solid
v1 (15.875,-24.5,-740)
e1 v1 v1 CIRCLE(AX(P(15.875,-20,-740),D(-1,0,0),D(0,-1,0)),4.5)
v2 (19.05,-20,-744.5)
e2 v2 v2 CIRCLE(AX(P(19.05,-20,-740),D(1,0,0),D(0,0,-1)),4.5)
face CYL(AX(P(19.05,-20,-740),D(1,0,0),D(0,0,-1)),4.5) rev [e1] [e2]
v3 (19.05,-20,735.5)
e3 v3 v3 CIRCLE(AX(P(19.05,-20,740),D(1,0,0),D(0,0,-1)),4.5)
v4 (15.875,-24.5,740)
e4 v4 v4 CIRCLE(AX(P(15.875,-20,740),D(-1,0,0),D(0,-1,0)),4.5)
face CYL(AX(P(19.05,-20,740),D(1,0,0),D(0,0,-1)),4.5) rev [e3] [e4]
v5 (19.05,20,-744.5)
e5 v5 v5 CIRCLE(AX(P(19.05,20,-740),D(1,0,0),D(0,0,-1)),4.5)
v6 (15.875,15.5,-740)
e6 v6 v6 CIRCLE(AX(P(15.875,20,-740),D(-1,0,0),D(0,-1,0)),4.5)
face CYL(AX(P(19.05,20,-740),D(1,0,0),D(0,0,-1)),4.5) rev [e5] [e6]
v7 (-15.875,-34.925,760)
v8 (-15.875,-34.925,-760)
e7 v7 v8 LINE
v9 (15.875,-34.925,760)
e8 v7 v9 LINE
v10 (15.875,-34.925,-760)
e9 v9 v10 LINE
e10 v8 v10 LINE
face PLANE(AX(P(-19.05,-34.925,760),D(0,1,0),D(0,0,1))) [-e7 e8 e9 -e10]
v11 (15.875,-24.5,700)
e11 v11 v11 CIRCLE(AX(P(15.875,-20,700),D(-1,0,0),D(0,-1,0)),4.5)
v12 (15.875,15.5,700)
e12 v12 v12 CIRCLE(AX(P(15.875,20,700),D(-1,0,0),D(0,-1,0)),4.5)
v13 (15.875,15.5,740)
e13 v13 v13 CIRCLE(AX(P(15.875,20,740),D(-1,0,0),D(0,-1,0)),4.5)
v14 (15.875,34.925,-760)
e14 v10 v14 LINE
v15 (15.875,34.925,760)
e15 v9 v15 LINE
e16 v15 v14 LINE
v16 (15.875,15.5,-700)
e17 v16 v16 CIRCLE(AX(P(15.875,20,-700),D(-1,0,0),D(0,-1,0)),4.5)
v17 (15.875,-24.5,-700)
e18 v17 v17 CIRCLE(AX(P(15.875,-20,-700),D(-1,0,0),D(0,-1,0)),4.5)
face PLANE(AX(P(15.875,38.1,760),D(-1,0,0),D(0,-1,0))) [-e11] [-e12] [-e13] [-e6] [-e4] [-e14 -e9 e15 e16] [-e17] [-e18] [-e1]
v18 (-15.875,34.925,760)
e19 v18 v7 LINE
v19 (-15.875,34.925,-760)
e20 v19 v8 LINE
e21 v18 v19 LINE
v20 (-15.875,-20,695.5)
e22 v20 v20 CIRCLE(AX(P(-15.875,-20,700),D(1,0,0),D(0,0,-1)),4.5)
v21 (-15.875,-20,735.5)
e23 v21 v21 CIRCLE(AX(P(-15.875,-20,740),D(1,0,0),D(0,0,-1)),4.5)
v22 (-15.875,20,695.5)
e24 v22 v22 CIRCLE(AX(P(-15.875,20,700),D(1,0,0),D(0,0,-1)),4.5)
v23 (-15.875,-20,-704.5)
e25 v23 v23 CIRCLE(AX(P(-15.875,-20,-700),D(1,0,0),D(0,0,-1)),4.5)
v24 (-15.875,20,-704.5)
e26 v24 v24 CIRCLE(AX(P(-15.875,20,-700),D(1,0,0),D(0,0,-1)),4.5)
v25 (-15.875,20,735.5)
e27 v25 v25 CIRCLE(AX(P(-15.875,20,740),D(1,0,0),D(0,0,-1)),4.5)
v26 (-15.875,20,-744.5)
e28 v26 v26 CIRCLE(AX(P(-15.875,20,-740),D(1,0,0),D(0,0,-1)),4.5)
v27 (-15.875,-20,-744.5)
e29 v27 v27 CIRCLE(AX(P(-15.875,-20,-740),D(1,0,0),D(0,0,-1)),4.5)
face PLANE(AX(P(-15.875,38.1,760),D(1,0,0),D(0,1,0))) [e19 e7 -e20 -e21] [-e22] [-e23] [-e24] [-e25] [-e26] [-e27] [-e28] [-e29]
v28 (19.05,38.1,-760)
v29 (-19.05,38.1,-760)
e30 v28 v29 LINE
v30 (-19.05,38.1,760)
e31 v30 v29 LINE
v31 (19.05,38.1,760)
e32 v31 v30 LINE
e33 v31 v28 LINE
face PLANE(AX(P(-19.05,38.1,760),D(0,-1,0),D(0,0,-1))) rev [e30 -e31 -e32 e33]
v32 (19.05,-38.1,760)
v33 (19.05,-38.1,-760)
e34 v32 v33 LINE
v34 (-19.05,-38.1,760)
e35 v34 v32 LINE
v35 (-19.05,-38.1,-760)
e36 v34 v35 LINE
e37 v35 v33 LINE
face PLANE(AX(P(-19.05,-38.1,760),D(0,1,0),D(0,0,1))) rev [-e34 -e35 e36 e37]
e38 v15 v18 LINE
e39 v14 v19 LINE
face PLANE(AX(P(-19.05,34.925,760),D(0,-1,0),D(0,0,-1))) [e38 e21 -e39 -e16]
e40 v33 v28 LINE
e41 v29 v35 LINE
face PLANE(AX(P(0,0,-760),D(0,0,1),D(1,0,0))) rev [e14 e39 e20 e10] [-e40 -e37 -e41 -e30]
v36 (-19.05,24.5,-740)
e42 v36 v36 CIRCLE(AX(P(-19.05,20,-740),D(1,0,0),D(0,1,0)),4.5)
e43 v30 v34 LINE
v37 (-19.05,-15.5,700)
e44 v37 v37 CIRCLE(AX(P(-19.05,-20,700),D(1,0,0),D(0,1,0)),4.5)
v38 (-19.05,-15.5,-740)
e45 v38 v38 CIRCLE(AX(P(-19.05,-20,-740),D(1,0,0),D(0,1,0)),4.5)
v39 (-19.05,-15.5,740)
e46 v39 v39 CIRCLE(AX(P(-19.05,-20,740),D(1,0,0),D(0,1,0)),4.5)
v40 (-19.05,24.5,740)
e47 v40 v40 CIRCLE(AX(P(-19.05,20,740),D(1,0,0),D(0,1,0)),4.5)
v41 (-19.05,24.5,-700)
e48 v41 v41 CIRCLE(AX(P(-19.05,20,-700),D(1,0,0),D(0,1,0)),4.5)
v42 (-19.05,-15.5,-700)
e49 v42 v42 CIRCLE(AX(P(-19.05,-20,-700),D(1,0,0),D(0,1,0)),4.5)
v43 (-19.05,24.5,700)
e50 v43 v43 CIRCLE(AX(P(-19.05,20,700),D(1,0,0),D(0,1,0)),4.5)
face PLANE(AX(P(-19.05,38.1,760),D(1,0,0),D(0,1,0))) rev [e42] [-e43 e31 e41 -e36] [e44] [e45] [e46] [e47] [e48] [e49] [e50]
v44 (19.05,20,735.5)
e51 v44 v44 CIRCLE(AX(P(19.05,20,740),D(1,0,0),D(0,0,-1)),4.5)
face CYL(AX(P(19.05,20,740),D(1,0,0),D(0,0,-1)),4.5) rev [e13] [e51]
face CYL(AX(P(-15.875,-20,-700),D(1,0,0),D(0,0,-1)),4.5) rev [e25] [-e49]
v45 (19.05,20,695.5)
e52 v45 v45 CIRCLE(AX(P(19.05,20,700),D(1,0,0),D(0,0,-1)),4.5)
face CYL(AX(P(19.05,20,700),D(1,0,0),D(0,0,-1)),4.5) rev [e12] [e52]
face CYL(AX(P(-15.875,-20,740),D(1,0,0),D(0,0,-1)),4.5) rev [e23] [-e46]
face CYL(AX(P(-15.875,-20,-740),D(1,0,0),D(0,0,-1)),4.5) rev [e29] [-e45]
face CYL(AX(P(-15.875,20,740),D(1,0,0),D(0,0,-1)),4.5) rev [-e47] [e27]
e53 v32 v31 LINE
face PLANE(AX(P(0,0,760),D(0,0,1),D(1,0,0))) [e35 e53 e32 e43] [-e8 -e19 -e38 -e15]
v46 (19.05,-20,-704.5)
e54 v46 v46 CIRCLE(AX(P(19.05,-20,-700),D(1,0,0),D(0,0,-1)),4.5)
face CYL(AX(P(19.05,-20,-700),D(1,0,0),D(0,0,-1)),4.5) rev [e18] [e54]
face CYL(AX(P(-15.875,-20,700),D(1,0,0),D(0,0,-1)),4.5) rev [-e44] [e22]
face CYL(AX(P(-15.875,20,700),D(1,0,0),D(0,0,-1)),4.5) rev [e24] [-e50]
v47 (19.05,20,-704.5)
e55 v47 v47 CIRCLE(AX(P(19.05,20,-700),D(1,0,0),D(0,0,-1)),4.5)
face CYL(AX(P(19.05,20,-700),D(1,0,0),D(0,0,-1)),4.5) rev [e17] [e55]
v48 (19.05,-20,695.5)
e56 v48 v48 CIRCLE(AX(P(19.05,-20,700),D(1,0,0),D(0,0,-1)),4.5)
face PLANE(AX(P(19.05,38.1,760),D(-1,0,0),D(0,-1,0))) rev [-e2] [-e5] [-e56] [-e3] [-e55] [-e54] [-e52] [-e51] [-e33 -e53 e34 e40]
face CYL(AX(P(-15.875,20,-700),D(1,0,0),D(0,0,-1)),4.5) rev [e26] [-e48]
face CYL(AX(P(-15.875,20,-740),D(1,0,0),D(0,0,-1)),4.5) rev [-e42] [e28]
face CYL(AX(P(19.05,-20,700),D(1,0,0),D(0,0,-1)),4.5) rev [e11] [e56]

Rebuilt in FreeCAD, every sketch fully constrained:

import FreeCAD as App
import Part
import Sketcher
from FreeCAD import Vector
Q = App.Units.Quantity


def add_polygon(sketch, points):
    """Adds a closed chain of lines whose ends are joined by coincident constraints."""
    first, n = sketch.GeometryCount, len(points)
    for a, b in zip(points, points[1:] + points[:1]):
        sketch.addGeometry(Part.LineSegment(App.Vector(*a, 0), App.Vector(*b, 0)), False)
    for i in range(n):
        sketch.addConstraint(Sketcher.Constraint("Coincident", first + i, 2, first + (i + 1) % n, 1))

doc = App.newDocument("Part")
params = doc.addObject("Spreadsheet::Sheet", "Params")
for row, (alias, value) in enumerate([
    ("sketch1_height", "3 in"),
    ("sketch1_width", "1.5 in"),
    ("sketch1_width2", "1.25 in"),
    ("sketch1_height2", "2.75 in"),
    ("pad1_length", "1520 mm"),
    ("hole_diameter", "9 mm"),
    ("hole_depth", "0.125 in"),
    ("hole2_diameter", "9 mm"),
], start=1):
    params.set(f"A{row}", alias)
    params.set(f"B{row}", "=" + value)
    params.setAlias(f"B{row}", alias)

body = doc.addObject("PartDesign::Body", "Body")

# Sketch on XY plane
sketch1 = doc.addObject("Sketcher::SketchObject", "Sketch")
body.addObject(sketch1)
sketch1.AttachmentSupport = (doc.XY_Plane, [""])
sketch1.MapMode = "FlatFace"
add_polygon(sketch1, [(-19, 38), (-19, -38), (19, -38), (19, 38)])  # lines 0-3
add_polygon(sketch1, [(16, -35), (-16, -35), (-16, 35), (16, 35)])  # lines 4-7
sketch1.addConstraint([
    Sketcher.Constraint("Vertical", 0),
    Sketcher.Constraint("Horizontal", 1),
    Sketcher.Constraint("Vertical", 2),
    Sketcher.Constraint("Horizontal", 3),
    Sketcher.Constraint("Horizontal", 4),
    Sketcher.Constraint("Vertical", 5),
    Sketcher.Constraint("Horizontal", 6),
    Sketcher.Constraint("Vertical", 7),
    Sketcher.Constraint("Symmetric", 0, 2, 2, 2, -1, 1),
    Sketcher.Constraint("Symmetric", 4, 2, 6, 2, -1, 1),
    Sketcher.Constraint("DistanceY", 0, 2, 0, 1, Q("3 in")),
    Sketcher.Constraint("DistanceX", 1, 1, 1, 2, Q("1.5 in")),
    Sketcher.Constraint("DistanceX", 4, 2, 4, 1, Q("1.25 in")),
    Sketcher.Constraint("DistanceY", 5, 1, 5, 2, Q("2.75 in")),
])
sketch1.setExpression("Constraints[18]", "Params.sketch1_height")
sketch1.setExpression("Constraints[19]", "Params.sketch1_width")
sketch1.setExpression("Constraints[20]", "Params.sketch1_width2")
sketch1.setExpression("Constraints[21]", "Params.sketch1_height2")
pad1 = doc.addObject("PartDesign::Pad", "Pad")
body.addObject(pad1)
pad1.Profile = sketch1
pad1.setExpression("Length", "Params.pad1_length")
pad1.Midplane = True

# Sketch on YZ plane
sketch2 = doc.addObject("Sketcher::SketchObject", "Sketch001")
body.addObject(sketch2)
sketch2.AttachmentSupport = (doc.YZ_Plane, [""])
sketch2.MapMode = "FlatFace"
sketch2.AttachmentOffset = App.Placement(Vector(0, 0, 0.75 * 25.4), App.Rotation())
sketch2.addGeometry([
    Part.Circle(Vector(20, 740, 0), Vector(0, 0, 1), 4.5),
    Part.Circle(Vector(-20, 740, 0), Vector(0, 0, 1), 4.5),
    Part.Circle(Vector(20, 700, 0), Vector(0, 0, 1), 4.5),
    Part.Circle(Vector(-20, 700, 0), Vector(0, 0, 1), 4.5),
], False)
sketch2.addConstraint([
    Sketcher.Constraint("Equal", 0, 1),
    Sketcher.Constraint("Equal", 1, 2),
    Sketcher.Constraint("Equal", 2, 3),
    Sketcher.Constraint("Symmetric", 0, 3, 1, 3, -2),
    Sketcher.Constraint("Symmetric", 2, 3, 3, 3, -2),
    Sketcher.Constraint("Vertical", 0, 3, 2, 3),
    Sketcher.Constraint("Diameter", 0, 9.0),
    Sketcher.Constraint("DistanceX", -1, 1, 0, 3, 20.0),
    Sketcher.Constraint("DistanceY", -1, 1, 0, 3, 740.0),
    Sketcher.Constraint("DistanceY", -1, 1, 2, 3, 700.0),
])
doc.recompute()
hole = doc.addObject("PartDesign::Hole", "Hole")
body.addObject(hole)
hole.Profile = sketch2
hole.ThreadType = "None"
hole.setExpression("Diameter", "Params.hole_diameter")
hole.DepthType = "Dimension"
hole.setExpression("Depth", "Params.hole_depth")
hole.DrillPoint = "Flat"

# Sketch on YZ plane
sketch3 = doc.addObject("Sketcher::SketchObject", "Sketch002")
body.addObject(sketch3)
sketch3.AttachmentSupport = (doc.YZ_Plane, [""])
sketch3.MapMode = "FlatFace"
sketch3.AttachmentOffset = App.Placement(Vector(0, 0, -0.625 * 25.4), App.Rotation())
sketch3.addGeometry([
    Part.Circle(Vector(20, 740, 0), Vector(0, 0, 1), 4.5),
    Part.Circle(Vector(-20, 740, 0), Vector(0, 0, 1), 4.5),
    Part.Circle(Vector(20, 700, 0), Vector(0, 0, 1), 4.5),
    Part.Circle(Vector(-20, 700, 0), Vector(0, 0, 1), 4.5),
], False)
sketch3.addConstraint([
    Sketcher.Constraint("Equal", 0, 1),
    Sketcher.Constraint("Equal", 1, 2),
    Sketcher.Constraint("Equal", 2, 3),
    Sketcher.Constraint("Symmetric", 0, 3, 1, 3, -2),
    Sketcher.Constraint("Symmetric", 2, 3, 3, 3, -2),
    Sketcher.Constraint("Vertical", 0, 3, 2, 3),
    Sketcher.Constraint("Diameter", 0, 9.0),
    Sketcher.Constraint("DistanceX", -1, 1, 0, 3, 20.0),
    Sketcher.Constraint("DistanceY", -1, 1, 0, 3, 740.0),
    Sketcher.Constraint("DistanceY", -1, 1, 2, 3, 700.0),
])
doc.recompute()
hole2 = doc.addObject("PartDesign::Hole", "Hole001")
body.addObject(hole2)
hole2.Profile = sketch3
hole2.ThreadType = "None"
hole2.setExpression("Diameter", "Params.hole2_diameter")
hole2.DepthType = "ThroughAll"
doc.recompute()

mirrored = doc.addObject("PartDesign::Mirrored", "Mirrored")
body.addObject(mirrored)
mirrored.Originals = [hole, hole2]
mirrored.MirrorPlane = (doc.XY_Plane, [""])
body.Tip = mirrored

doc.recompute()
